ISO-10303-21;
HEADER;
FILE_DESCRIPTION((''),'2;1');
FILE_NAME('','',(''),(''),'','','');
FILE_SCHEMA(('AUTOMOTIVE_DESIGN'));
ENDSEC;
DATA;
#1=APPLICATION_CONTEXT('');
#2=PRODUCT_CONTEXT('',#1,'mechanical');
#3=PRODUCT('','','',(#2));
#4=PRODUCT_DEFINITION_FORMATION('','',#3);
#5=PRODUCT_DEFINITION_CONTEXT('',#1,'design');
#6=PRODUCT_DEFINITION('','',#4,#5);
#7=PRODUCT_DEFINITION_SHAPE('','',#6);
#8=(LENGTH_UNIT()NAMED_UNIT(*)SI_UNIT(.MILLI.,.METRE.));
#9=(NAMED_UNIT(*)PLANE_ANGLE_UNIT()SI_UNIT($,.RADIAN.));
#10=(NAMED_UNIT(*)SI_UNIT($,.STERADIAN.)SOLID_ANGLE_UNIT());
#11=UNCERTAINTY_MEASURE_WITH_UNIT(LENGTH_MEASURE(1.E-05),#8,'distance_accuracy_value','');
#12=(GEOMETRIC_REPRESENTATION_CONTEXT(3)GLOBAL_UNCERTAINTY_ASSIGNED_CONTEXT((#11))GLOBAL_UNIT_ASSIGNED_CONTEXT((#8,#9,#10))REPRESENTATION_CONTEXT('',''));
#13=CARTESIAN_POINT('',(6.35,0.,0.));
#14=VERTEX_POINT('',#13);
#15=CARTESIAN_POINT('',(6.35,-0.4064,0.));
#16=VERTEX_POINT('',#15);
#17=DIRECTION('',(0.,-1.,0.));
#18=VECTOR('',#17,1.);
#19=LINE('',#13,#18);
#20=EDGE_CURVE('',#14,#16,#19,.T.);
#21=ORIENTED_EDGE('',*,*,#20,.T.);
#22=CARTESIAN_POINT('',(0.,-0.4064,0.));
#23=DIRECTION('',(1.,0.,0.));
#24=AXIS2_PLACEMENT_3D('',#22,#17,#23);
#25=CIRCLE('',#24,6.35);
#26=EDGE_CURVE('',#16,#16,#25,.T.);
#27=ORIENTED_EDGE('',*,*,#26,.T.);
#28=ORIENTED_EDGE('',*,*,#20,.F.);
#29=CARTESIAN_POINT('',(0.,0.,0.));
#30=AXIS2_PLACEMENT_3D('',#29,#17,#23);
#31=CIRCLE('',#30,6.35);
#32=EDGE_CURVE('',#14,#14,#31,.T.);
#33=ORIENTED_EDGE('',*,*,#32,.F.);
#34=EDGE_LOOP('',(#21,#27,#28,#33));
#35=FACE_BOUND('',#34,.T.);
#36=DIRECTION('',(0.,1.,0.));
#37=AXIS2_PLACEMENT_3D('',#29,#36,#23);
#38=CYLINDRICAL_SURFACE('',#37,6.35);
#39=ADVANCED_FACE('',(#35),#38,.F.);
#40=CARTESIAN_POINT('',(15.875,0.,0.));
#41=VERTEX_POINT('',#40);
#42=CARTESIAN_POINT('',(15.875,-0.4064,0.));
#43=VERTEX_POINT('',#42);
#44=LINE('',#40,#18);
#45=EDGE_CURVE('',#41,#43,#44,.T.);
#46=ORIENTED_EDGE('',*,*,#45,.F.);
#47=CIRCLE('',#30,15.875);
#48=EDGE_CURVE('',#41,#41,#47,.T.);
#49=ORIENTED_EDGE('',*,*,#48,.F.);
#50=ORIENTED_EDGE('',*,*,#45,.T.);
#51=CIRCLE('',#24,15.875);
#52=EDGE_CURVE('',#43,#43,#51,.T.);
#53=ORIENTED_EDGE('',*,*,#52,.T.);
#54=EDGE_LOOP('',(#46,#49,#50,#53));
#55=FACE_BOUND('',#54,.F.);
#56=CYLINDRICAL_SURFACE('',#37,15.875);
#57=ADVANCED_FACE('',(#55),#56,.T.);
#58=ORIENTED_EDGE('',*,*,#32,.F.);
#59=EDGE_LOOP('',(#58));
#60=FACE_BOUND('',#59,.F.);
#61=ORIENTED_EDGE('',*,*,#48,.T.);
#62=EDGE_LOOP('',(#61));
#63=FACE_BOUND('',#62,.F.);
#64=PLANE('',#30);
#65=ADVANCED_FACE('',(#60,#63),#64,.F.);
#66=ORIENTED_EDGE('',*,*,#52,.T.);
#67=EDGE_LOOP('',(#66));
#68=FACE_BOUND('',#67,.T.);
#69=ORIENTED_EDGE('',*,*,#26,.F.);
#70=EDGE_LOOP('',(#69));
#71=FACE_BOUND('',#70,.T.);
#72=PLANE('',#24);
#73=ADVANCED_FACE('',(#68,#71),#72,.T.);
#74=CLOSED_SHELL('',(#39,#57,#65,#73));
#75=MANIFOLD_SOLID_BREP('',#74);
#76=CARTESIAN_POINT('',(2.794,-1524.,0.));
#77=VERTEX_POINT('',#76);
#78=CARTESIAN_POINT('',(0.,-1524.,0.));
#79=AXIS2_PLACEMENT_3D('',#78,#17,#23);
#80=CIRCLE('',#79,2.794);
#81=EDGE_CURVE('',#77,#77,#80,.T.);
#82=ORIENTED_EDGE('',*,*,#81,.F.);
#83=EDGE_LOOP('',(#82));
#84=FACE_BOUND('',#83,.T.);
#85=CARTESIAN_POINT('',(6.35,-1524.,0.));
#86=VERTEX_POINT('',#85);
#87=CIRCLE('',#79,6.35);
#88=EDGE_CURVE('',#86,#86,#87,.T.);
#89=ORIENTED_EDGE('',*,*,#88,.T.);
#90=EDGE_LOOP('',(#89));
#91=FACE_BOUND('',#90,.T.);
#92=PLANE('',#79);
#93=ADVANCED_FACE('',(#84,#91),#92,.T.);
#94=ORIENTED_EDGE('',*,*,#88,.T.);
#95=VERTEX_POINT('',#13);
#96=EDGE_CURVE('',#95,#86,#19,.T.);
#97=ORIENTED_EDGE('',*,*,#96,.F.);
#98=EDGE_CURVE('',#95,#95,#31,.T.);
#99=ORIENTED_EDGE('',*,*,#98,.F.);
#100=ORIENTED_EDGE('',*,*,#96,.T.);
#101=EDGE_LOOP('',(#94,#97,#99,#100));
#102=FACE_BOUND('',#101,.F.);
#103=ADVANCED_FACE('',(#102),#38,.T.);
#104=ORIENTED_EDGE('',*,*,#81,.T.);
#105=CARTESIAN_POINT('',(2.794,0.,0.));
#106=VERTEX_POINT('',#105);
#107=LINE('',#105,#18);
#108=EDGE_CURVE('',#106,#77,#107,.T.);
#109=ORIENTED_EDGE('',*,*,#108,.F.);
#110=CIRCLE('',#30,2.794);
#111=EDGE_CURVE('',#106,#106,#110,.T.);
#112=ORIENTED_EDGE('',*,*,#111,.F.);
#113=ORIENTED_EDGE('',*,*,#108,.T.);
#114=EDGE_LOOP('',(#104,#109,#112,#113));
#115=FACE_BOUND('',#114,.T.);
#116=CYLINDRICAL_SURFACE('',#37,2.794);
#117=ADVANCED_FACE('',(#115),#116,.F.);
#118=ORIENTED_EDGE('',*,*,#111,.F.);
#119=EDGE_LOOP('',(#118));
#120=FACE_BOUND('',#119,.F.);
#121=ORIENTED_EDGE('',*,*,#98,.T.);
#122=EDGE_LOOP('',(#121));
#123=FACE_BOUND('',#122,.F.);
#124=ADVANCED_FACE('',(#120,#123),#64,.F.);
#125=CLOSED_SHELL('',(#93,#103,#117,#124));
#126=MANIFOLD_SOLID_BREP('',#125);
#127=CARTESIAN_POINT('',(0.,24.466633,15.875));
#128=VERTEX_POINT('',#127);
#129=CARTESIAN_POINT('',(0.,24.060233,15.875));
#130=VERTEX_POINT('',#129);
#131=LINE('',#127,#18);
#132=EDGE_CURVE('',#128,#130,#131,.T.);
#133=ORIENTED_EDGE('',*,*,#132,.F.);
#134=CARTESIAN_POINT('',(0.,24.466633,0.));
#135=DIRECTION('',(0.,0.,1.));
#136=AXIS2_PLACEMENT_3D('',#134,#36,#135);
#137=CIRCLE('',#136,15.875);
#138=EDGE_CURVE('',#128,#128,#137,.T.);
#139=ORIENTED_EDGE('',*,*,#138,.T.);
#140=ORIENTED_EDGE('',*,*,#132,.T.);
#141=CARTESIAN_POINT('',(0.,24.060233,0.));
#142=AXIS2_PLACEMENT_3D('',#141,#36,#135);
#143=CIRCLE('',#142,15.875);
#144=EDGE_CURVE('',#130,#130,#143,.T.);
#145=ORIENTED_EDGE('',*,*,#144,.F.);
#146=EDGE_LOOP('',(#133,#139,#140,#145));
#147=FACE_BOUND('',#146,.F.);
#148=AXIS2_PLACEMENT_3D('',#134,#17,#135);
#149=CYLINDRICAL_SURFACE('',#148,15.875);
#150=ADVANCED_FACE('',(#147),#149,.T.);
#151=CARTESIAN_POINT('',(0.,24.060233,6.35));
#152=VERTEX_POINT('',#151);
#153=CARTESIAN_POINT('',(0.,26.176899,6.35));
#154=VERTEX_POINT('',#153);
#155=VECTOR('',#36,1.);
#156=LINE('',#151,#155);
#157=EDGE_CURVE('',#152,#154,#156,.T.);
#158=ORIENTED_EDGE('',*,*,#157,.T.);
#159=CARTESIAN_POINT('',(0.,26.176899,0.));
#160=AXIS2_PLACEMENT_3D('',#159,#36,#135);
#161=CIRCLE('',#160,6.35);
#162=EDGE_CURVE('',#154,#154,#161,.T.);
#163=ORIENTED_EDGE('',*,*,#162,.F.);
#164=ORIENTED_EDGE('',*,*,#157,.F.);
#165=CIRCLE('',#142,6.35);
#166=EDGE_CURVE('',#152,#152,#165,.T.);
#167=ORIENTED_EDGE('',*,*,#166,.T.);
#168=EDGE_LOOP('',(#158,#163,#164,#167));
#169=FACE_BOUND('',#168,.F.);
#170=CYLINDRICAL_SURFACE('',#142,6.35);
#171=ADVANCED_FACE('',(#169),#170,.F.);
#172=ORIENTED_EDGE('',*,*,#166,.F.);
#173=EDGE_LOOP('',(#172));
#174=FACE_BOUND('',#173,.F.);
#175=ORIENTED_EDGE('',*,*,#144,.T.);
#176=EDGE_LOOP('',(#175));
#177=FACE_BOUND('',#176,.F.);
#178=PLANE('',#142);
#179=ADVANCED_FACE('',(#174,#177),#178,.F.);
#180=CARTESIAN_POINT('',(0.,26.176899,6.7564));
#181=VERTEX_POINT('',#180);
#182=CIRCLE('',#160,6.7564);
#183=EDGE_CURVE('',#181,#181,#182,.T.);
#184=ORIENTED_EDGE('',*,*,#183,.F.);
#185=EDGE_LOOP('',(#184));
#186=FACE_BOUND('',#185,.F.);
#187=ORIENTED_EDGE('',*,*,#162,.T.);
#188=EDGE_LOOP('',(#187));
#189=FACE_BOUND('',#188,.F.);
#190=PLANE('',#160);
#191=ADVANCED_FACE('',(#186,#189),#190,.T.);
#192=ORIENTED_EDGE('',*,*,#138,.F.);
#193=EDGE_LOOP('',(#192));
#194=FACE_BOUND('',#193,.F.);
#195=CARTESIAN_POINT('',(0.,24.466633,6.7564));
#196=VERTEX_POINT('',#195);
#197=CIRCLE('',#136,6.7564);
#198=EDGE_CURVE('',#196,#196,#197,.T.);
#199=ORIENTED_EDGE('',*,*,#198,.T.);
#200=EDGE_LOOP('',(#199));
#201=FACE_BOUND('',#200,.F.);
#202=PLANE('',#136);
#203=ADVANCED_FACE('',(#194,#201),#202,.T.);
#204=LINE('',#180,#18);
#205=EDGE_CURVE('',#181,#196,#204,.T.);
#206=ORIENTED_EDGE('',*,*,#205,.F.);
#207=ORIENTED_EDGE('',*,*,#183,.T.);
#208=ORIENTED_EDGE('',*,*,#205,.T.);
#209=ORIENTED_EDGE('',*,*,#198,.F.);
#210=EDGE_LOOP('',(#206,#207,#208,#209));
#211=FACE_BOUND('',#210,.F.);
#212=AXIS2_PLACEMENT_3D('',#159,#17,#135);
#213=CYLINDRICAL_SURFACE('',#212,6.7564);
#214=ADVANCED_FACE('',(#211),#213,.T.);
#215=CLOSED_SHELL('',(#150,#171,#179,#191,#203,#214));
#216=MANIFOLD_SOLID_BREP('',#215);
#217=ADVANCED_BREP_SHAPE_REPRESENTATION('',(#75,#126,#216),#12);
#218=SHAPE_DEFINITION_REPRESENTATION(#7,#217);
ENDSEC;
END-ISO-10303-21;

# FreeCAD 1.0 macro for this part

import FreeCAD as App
import Part
import Sketcher
Q = App.Units.Quantity

doc = App.newDocument("Part")
body = doc.addObject("PartDesign::Body", "Body")

# Sketch on XZ plane
sketch1 = body.newObject("Sketcher::SketchObject", "Sketch")
sketch1.AttachmentSupport = (doc.getObject("XZ_Plane"), [""])
sketch1.MapMode = "FlatFace"
sketch1.addGeometry([
    Part.Circle(App.Vector(0, 0, 0), App.Vector(0, 0, 1), 16),
    Part.Circle(App.Vector(0, 0, 0), App.Vector(0, 0, 1), 6),
], False)
sketch1.addConstraint([
    Sketcher.Constraint("Coincident", 0, 3, -1, 1),
    Sketcher.Constraint("Coincident", 1, 3, -1, 1),
    Sketcher.Constraint("Diameter", 1, Q("0.5 in")),
    Sketcher.Constraint("Diameter", 0, Q("1.25 in")),
])
pad1 = body.newObject("PartDesign::Pad", "Pad")
pad1.Profile = sketch1
pad1.Length = Q("0.016 in")
body2 = doc.addObject("PartDesign::Body", "Body001")

# Sketch on XZ plane
sketch2 = body2.newObject("Sketcher::SketchObject", "Sketch001")
sketch2.AttachmentSupport = (doc.getObject("XZ_Plane001"), [""])
sketch2.MapMode = "FlatFace"
sketch2.addGeometry([
    Part.Circle(App.Vector(0, 0, 0), App.Vector(0, 0, 1), 6.3),
    Part.Circle(App.Vector(0, 0, 0), App.Vector(0, 0, 1), 2.8),
], False)
sketch2.addConstraint([
    Sketcher.Constraint("Coincident", 0, 3, -1, 1),
    Sketcher.Constraint("Coincident", 1, 3, -1, 1),
    Sketcher.Constraint("Diameter", 0, Q("0.5 in")),
    Sketcher.Constraint("Diameter", 1, Q("0.22 in")),
])
pad2 = body2.newObject("PartDesign::Pad", "Pad001")
pad2.Profile = sketch2
pad2.Length = Q("60 in")
body3 = doc.addObject("PartDesign::Body", "Body002")

# Sketch on YZ plane
sketch3 = body3.newObject("Sketcher::SketchObject", "Sketch002")
sketch3.AttachmentSupport = (doc.getObject("YZ_Plane002"), [""])
sketch3.MapMode = "FlatFace"
sketch3.addGeometry([
    Part.LineSegment(App.Vector(24.06, 6.35, 0), App.Vector(26.18, 6.35, 0)),  # 0
    Part.LineSegment(App.Vector(26.18, 6.35, 0), App.Vector(26.18, 6.76, 0)),  # 1
    Part.LineSegment(App.Vector(26.18, 6.76, 0), App.Vector(24.47, 6.76, 0)),  # 2
    Part.LineSegment(App.Vector(24.47, 6.76, 0), App.Vector(24.47, 15.88, 0)),  # 3
    Part.LineSegment(App.Vector(24.47, 15.88, 0), App.Vector(24.06, 15.88, 0)),  # 4
    Part.LineSegment(App.Vector(24.06, 15.88, 0), App.Vector(24.06, 6.35, 0)),  # 5
], False)
sketch3.addConstraint([
    Sketcher.Constraint("Coincident", 0, 2, 1, 1),
    Sketcher.Constraint("Coincident", 1, 2, 2, 1),
    Sketcher.Constraint("Coincident", 2, 2, 3, 1),
    Sketcher.Constraint("Coincident", 3, 2, 4, 1),
    Sketcher.Constraint("Coincident", 4, 2, 5, 1),
    Sketcher.Constraint("Coincident", 5, 2, 0, 1),
    Sketcher.Constraint("Horizontal", 0),
    Sketcher.Constraint("Vertical", 1),
    Sketcher.Constraint("Horizontal", 2),
    Sketcher.Constraint("Vertical", 3),
    Sketcher.Constraint("Horizontal", 4),
    Sketcher.Constraint("Vertical", 5),
    Sketcher.Constraint("Equal", 4, 1),
    Sketcher.Constraint("DistanceX", 4, 2, 4, 1, Q("0.016 in")),
    Sketcher.Constraint("DistanceY", 3, 1, 3, 2, Q("0.359 in")),
    Sketcher.Constraint("DistanceY", -1, 1, 0, 2, Q("0.25 in")),
    Sketcher.Constraint("DistanceX", -1, 1, 0, 2, Q("26.176899 mm")),
    Sketcher.Constraint("DistanceX", 0, 1, 0, 2, Q("2.116666 mm")),
])
revolution = body3.newObject("PartDesign::Revolution", "Revolution")
revolution.Profile = sketch3
revolution.ReferenceAxis = (sketch3, ["H_Axis"])
revolution.Angle = 360

doc.recompute()
